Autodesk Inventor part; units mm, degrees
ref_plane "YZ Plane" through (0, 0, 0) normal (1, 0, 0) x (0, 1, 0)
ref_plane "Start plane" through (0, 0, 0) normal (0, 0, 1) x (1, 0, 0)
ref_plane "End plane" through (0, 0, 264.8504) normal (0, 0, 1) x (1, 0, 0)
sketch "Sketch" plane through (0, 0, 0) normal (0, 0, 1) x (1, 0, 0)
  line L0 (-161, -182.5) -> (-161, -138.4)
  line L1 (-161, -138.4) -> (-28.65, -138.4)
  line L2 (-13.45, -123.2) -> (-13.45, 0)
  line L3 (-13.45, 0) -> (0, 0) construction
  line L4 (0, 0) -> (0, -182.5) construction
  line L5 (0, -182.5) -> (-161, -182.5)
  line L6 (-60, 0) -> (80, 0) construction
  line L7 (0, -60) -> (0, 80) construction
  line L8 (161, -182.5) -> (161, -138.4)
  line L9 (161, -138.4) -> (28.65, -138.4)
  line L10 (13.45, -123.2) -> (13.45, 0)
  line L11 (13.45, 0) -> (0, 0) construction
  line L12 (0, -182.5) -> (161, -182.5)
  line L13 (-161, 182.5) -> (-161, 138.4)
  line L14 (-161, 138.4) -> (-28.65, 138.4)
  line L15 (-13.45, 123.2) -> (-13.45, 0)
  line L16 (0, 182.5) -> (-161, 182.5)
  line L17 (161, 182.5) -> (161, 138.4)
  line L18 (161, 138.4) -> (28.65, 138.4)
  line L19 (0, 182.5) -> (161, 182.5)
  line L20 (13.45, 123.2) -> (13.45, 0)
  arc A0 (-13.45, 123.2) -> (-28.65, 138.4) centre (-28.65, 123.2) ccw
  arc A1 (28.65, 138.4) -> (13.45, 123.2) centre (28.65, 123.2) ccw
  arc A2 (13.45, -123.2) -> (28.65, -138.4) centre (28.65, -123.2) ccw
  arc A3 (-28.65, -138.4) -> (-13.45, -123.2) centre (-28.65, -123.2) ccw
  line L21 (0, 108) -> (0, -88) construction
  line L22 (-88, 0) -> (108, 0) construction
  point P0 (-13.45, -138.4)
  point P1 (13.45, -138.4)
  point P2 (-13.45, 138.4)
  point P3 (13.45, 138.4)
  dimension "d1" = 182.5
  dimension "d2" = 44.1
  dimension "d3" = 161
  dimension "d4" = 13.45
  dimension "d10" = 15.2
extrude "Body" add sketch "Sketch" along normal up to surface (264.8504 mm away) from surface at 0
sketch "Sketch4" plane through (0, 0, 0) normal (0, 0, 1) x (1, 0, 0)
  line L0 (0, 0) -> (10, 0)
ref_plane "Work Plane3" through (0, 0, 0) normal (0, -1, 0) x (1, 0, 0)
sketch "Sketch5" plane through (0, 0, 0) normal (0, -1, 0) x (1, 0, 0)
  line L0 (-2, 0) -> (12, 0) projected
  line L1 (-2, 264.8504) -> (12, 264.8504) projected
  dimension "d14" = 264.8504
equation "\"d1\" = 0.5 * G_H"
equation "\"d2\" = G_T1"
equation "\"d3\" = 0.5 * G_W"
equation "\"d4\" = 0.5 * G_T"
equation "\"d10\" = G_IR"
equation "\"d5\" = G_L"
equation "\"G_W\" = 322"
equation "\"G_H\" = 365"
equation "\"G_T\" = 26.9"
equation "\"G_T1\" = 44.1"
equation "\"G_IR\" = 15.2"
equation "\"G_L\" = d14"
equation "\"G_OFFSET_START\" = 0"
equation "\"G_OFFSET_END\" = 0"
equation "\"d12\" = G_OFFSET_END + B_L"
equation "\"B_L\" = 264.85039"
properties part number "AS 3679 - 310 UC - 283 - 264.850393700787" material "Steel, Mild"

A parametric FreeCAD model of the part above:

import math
import FreeCAD as App
import Part
import Sketcher
from FreeCAD import Vector
Q = App.Units.Quantity

doc = App.newDocument("Part")
body = doc.addObject("PartDesign::Body", "Body")

# Sketch on XY plane
sketch1 = doc.addObject("Sketcher::SketchObject", "Sketch")
body.addObject(sketch1)
sketch1.AttachmentSupport = (doc.XY_Plane, [""])
sketch1.MapMode = "FlatFace"
sketch1.addGeometry([
    Part.LineSegment(Vector(-161, -138.4, 0), Vector(-161, -182.5, 0)),  # 0
    Part.LineSegment(Vector(-161, -182.5, 0), Vector(161, -182.5, 0)),  # 1
    Part.LineSegment(Vector(161, -182.5, 0), Vector(161, -138.4, 0)),  # 2
    Part.LineSegment(Vector(161, -138.4, 0), Vector(28.65, -138.4, 0)),  # 3
    Part.ArcOfCircle(Part.Circle(Vector(28.65, -123.2, 0), Vector(0, 0, 1), 15.2), math.radians(180), math.radians(270)),  # 4
    Part.LineSegment(Vector(13.45, -123.2, 0), Vector(13.45, 123.2, 0)),  # 5
    Part.ArcOfCircle(Part.Circle(Vector(28.65, 123.2, 0), Vector(0, 0, 1), 15.2), math.radians(90), math.radians(180)),  # 6
    Part.LineSegment(Vector(28.65, 138.4, 0), Vector(161, 138.4, 0)),  # 7
    Part.LineSegment(Vector(161, 138.4, 0), Vector(161, 182.5, 0)),  # 8
    Part.LineSegment(Vector(161, 182.5, 0), Vector(-161, 182.5, 0)),  # 9
    Part.LineSegment(Vector(-161, 182.5, 0), Vector(-161, 138.4, 0)),  # 10
    Part.LineSegment(Vector(-161, 138.4, 0), Vector(-28.65, 138.4, 0)),  # 11
    Part.ArcOfCircle(Part.Circle(Vector(-28.65, 123.2, 0), Vector(0, 0, 1), 15.2), math.radians(0), math.radians(90)),  # 12
    Part.LineSegment(Vector(-13.45, 123.2, 0), Vector(-13.45, -123.2, 0)),  # 13
    Part.ArcOfCircle(Part.Circle(Vector(-28.65, -123.2, 0), Vector(0, 0, 1), 15.2), math.radians(-90), math.radians(0)),  # 14
    Part.LineSegment(Vector(-28.65, -138.4, 0), Vector(-161, -138.4, 0)),  # 15
], False)
sketch1.addConstraint([
    Sketcher.Constraint("Coincident", 0, 2, 1, 1),
    Sketcher.Constraint("Coincident", 1, 2, 2, 1),
    Sketcher.Constraint("Coincident", 2, 2, 3, 1),
    Sketcher.Constraint("Tangent", 3, 2, 4, 2),
    Sketcher.Constraint("Tangent", 4, 1, 5, 1),
    Sketcher.Constraint("Tangent", 5, 2, 6, 2),
    Sketcher.Constraint("Tangent", 6, 1, 7, 1),
    Sketcher.Constraint("Coincident", 7, 2, 8, 1),
    Sketcher.Constraint("Coincident", 8, 2, 9, 1),
    Sketcher.Constraint("Coincident", 9, 2, 10, 1),
    Sketcher.Constraint("Coincident", 10, 2, 11, 1),
    Sketcher.Constraint("Tangent", 11, 2, 12, 2),
    Sketcher.Constraint("Tangent", 12, 1, 13, 1),
    Sketcher.Constraint("Tangent", 13, 2, 14, 2),
    Sketcher.Constraint("Tangent", 14, 1, 15, 1),
    Sketcher.Constraint("Coincident", 15, 2, 0, 1),
    Sketcher.Constraint("Vertical", 0),
    Sketcher.Constraint("Horizontal", 1),
    Sketcher.Constraint("Vertical", 2),
    Sketcher.Constraint("Horizontal", 3),
    Sketcher.Constraint("Vertical", 5),
    Sketcher.Constraint("Horizontal", 7),
    Sketcher.Constraint("Vertical", 8),
    Sketcher.Constraint("Horizontal", 9),
    Sketcher.Constraint("Vertical", 10),
    Sketcher.Constraint("Horizontal", 11),
    Sketcher.Constraint("Vertical", 13),
    Sketcher.Constraint("Horizontal", 15),
    Sketcher.Constraint("Equal", 4, 6),
    Sketcher.Constraint("Equal", 6, 12),
    Sketcher.Constraint("Equal", 12, 14),
    Sketcher.Constraint("Symmetric", 4, 3, 12, 3, -1, 1),
    Sketcher.Constraint("Symmetric", 0, 2, 8, 2, -1, 1),
    Sketcher.Constraint("Symmetric", 7, 2, 10, 2, -2),
    Sketcher.Constraint("Symmetric", 2, 2, 15, 2, -2),
    Sketcher.Constraint("Radius", 4, Q("15.2 mm")),
    Sketcher.Constraint("DistanceY", 0, 2, 0, 1, Q("44.1 mm")),
    Sketcher.Constraint("DistanceX", 0, 2, -1, 1, Q("161 mm")),
    Sketcher.Constraint("DistanceY", 0, 2, -1, 1, Q("182.5 mm")),
    Sketcher.Constraint("DistanceX", -1, 1, 4, 1, Q("13.45 mm")),
])
pad1 = doc.addObject("PartDesign::Pad", "Pad")
body.addObject(pad1)
pad1.Profile = sketch1
pad1.Length = 264.8504

doc.recompute()
